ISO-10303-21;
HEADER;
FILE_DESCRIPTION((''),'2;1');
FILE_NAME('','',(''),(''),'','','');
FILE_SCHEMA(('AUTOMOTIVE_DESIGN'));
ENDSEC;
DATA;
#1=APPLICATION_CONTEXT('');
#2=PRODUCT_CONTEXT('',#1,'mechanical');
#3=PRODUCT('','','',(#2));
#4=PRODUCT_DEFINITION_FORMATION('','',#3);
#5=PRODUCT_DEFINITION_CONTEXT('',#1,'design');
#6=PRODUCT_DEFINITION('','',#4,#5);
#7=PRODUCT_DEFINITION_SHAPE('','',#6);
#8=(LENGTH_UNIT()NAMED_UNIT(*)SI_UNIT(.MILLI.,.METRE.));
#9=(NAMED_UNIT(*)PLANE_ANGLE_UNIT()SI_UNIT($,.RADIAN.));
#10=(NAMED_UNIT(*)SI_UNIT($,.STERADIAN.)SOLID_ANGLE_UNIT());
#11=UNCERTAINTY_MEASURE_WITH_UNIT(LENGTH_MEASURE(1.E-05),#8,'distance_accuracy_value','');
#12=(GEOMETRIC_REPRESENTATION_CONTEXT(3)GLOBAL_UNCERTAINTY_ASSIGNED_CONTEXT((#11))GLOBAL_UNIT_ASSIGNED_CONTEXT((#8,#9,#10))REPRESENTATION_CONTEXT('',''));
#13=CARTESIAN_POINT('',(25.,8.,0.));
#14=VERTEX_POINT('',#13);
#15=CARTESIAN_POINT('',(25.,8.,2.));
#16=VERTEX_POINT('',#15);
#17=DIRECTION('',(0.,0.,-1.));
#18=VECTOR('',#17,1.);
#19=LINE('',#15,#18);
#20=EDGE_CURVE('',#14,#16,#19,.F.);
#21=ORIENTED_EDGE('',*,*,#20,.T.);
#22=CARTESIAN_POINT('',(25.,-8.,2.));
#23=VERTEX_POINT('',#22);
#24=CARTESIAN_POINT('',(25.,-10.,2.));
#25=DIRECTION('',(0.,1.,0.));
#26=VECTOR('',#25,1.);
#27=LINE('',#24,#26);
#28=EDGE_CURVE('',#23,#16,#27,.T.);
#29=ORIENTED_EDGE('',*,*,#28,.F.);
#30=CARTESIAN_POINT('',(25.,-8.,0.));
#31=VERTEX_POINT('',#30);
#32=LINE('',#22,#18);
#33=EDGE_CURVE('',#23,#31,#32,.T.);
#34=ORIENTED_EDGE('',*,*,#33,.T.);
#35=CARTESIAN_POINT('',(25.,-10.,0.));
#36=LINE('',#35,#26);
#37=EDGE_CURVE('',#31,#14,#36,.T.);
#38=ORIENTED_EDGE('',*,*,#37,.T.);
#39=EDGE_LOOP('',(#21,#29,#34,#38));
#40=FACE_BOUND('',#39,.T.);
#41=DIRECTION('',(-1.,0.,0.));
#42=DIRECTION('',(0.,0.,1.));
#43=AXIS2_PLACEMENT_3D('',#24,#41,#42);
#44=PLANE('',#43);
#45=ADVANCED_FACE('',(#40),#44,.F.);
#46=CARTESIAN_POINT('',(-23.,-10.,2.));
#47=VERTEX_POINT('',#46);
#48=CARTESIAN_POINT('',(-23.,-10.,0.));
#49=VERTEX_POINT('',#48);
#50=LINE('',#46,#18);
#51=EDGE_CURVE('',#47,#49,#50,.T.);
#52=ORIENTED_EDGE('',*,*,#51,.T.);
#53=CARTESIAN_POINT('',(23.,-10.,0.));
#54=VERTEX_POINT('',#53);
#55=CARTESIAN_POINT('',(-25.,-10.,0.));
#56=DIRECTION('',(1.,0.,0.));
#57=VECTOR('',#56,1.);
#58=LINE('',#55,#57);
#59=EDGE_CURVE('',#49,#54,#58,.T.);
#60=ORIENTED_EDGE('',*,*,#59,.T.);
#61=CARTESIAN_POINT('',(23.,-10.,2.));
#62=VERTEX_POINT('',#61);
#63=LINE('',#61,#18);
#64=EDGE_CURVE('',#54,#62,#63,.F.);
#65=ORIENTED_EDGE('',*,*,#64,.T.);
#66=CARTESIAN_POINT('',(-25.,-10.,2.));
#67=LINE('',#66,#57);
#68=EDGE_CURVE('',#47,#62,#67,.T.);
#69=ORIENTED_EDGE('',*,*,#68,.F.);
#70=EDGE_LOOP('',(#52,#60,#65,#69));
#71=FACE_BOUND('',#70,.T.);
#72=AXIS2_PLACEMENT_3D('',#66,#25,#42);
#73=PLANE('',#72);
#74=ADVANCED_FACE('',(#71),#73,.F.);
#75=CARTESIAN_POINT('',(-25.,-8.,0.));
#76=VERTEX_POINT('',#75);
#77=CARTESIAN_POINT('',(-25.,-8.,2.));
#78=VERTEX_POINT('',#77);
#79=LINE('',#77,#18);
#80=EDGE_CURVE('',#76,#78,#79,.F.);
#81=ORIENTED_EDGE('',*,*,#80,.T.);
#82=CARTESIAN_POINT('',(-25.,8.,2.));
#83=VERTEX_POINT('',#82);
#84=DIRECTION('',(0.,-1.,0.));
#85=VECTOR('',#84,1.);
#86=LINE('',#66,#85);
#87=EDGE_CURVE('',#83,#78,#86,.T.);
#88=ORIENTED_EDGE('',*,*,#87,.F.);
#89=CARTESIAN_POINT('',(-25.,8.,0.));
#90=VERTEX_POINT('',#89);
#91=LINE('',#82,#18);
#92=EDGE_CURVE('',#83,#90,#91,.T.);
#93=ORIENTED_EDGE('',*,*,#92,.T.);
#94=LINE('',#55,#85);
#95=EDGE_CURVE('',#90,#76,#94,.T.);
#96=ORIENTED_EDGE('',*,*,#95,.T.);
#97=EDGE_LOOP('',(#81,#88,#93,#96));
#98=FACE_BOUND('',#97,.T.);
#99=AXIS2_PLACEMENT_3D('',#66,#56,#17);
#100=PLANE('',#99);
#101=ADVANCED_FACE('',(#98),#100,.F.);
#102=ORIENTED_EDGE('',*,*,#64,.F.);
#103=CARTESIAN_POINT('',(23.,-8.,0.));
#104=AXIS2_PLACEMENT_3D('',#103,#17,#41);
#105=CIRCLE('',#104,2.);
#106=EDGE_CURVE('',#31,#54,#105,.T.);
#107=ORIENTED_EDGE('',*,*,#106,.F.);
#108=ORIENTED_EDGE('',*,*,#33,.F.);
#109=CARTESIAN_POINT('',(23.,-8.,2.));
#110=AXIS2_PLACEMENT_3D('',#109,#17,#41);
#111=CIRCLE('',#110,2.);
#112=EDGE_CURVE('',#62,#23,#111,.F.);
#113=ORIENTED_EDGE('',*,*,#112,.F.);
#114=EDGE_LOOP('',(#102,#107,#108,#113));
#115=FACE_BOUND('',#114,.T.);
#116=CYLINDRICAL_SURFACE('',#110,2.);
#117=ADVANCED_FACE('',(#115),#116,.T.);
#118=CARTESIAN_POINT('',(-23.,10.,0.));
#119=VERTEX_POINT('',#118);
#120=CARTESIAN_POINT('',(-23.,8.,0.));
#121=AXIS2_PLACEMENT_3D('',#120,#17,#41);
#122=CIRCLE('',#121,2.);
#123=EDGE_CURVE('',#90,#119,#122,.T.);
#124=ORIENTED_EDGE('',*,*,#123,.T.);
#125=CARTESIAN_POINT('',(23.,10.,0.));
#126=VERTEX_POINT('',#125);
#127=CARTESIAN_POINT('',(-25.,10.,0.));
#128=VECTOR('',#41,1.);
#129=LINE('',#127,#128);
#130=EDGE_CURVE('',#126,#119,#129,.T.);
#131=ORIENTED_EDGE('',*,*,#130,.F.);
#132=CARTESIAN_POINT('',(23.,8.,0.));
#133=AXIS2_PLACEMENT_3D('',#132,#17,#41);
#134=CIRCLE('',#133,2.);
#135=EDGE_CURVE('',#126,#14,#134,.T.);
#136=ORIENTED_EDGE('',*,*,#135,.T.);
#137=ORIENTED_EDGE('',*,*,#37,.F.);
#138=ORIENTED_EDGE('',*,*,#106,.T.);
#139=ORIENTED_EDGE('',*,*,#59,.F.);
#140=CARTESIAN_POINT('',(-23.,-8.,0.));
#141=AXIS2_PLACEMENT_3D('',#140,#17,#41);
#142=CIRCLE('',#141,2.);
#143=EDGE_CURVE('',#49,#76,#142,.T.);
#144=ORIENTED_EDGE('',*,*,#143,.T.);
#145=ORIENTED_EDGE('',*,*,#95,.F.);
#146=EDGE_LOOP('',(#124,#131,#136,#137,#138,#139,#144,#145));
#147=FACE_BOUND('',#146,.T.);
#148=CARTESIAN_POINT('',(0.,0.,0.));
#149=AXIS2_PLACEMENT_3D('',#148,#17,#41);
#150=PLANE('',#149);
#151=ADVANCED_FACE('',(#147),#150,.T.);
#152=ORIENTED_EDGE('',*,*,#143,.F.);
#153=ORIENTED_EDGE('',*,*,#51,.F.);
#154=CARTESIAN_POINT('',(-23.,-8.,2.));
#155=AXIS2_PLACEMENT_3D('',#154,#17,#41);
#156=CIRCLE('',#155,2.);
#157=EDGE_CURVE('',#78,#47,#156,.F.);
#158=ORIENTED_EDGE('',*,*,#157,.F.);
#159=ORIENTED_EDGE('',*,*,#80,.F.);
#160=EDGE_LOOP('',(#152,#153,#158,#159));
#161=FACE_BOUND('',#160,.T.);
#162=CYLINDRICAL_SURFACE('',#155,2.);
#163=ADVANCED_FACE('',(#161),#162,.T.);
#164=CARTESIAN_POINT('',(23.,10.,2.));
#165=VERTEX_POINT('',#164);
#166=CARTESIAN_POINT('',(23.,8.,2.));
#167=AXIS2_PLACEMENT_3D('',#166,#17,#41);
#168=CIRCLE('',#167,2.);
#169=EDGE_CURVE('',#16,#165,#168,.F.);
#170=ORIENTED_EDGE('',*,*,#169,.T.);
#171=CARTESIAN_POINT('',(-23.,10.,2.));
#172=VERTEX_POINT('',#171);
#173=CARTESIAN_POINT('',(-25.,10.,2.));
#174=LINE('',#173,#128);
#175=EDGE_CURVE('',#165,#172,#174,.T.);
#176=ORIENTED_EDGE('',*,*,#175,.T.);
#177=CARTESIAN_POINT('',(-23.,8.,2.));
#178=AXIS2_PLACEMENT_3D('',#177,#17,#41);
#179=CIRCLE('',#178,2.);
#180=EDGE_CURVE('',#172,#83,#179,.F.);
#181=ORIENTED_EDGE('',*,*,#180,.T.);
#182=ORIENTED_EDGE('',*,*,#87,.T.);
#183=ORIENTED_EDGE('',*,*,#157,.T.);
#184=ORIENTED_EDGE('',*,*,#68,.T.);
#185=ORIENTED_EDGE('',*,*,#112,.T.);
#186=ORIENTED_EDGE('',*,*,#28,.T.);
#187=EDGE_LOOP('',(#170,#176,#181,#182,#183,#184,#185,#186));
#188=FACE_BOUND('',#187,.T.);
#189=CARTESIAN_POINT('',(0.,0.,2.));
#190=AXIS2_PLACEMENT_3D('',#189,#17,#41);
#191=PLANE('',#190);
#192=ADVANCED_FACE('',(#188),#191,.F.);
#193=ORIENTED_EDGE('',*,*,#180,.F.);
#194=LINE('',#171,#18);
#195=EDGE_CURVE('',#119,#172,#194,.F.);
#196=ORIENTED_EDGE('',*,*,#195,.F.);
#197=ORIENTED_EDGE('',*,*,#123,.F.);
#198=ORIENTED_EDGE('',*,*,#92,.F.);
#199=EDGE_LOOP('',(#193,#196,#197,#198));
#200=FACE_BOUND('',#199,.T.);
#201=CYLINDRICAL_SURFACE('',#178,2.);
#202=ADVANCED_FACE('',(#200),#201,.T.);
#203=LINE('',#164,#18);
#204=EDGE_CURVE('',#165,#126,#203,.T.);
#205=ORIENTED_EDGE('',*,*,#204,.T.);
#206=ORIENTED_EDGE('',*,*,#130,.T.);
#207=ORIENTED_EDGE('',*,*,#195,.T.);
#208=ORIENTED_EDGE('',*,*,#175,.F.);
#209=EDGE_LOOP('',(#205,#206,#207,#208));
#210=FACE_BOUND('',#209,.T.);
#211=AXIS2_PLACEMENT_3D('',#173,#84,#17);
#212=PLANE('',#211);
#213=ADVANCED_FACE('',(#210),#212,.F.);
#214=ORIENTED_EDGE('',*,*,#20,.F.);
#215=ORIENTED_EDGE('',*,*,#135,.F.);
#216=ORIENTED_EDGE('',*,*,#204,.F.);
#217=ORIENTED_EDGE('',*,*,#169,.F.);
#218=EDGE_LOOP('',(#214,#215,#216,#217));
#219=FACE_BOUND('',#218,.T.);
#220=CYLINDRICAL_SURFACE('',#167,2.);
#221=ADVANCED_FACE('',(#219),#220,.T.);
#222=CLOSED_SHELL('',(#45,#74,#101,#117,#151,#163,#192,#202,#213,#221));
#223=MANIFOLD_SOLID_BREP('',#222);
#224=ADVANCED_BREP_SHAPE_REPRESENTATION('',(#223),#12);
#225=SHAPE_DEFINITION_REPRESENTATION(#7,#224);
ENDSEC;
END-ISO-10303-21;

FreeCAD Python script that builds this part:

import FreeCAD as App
import Part
import Sketcher


def edges_at(feature, points):
    """Names of the edges that pass closest to the given points."""
    edges = feature.Shape.Edges
    near = lambda p: min(range(len(edges)), key=lambda i: edges[i].distToShape(Part.Vertex(*p))[0])
    return sorted({f"Edge{near(p) + 1}" for p in points})

doc = App.newDocument("Part")
params = doc.addObject("Spreadsheet::Sheet", "Params")
for row, (alias, value) in enumerate([
    ("sketch1_width", "50 mm"),
    ("sketch1_height", "20 mm"),
    ("pad1_length", "2 mm"),
    ("fillet_radius", "2 mm"),
], start=1):
    params.set(f"A{row}", alias)
    params.set(f"B{row}", "=" + value)
    params.setAlias(f"B{row}", alias)

body = doc.addObject("PartDesign::Body", "Body")

sketch1 = doc.addObject("Sketcher::SketchObject", "Sketch")
body.addObject(sketch1)
sketch1.AttachmentSupport = (doc.XY_Plane, [""])
sketch1.MapMode = "FlatFace"
sketch1.addGeometry([
    Part.LineSegment(App.Vector(-25, 10, 0), App.Vector(-25, -10, 0)),
    Part.LineSegment(App.Vector(-25, -10, 0), App.Vector(25, -10, 0)),
    Part.LineSegment(App.Vector(25, -10, 0), App.Vector(25, 10, 0)),
    Part.LineSegment(App.Vector(25, 10, 0), App.Vector(-25, 10, 0)),
], False)
sketch1.addConstraint([
    Sketcher.Constraint("Coincident", 0, 2, 1, 1),
    Sketcher.Constraint("Coincident", 1, 2, 2, 1),
    Sketcher.Constraint("Coincident", 2, 2, 3, 1),
    Sketcher.Constraint("Coincident", 3, 2, 0, 1),
    Sketcher.Constraint("Vertical", 0),
    Sketcher.Constraint("Horizontal", 1),
    Sketcher.Constraint("Vertical", 2),
    Sketcher.Constraint("Horizontal", 3),
    Sketcher.Constraint("Symmetric", 0, 2, 2, 2, -1, 1),
    Sketcher.Constraint("DistanceX", 1, 1, 1, 2, 50.0),
    Sketcher.Constraint("DistanceY", 0, 2, 0, 1, 20.0),
])
sketch1.setExpression("Constraints[9]", "Params.sketch1_width")
sketch1.setExpression("Constraints[10]", "Params.sketch1_height")
pad1 = doc.addObject("PartDesign::Pad", "Pad")
body.addObject(pad1)
pad1.Profile = sketch1
pad1.setExpression("Length", "Params.pad1_length")
doc.recompute()

fillet = doc.addObject("PartDesign::Fillet", "Fillet")
body.addObject(fillet)
fillet.Base = (pad1, edges_at(pad1, [
    (25, -10, 1),
    (-25, -10, 1),
    (-25, 10, 1),
    (25, 10, 1),
]))
fillet.setExpression("Radius", "Params.fillet_radius")

doc.recompute()
